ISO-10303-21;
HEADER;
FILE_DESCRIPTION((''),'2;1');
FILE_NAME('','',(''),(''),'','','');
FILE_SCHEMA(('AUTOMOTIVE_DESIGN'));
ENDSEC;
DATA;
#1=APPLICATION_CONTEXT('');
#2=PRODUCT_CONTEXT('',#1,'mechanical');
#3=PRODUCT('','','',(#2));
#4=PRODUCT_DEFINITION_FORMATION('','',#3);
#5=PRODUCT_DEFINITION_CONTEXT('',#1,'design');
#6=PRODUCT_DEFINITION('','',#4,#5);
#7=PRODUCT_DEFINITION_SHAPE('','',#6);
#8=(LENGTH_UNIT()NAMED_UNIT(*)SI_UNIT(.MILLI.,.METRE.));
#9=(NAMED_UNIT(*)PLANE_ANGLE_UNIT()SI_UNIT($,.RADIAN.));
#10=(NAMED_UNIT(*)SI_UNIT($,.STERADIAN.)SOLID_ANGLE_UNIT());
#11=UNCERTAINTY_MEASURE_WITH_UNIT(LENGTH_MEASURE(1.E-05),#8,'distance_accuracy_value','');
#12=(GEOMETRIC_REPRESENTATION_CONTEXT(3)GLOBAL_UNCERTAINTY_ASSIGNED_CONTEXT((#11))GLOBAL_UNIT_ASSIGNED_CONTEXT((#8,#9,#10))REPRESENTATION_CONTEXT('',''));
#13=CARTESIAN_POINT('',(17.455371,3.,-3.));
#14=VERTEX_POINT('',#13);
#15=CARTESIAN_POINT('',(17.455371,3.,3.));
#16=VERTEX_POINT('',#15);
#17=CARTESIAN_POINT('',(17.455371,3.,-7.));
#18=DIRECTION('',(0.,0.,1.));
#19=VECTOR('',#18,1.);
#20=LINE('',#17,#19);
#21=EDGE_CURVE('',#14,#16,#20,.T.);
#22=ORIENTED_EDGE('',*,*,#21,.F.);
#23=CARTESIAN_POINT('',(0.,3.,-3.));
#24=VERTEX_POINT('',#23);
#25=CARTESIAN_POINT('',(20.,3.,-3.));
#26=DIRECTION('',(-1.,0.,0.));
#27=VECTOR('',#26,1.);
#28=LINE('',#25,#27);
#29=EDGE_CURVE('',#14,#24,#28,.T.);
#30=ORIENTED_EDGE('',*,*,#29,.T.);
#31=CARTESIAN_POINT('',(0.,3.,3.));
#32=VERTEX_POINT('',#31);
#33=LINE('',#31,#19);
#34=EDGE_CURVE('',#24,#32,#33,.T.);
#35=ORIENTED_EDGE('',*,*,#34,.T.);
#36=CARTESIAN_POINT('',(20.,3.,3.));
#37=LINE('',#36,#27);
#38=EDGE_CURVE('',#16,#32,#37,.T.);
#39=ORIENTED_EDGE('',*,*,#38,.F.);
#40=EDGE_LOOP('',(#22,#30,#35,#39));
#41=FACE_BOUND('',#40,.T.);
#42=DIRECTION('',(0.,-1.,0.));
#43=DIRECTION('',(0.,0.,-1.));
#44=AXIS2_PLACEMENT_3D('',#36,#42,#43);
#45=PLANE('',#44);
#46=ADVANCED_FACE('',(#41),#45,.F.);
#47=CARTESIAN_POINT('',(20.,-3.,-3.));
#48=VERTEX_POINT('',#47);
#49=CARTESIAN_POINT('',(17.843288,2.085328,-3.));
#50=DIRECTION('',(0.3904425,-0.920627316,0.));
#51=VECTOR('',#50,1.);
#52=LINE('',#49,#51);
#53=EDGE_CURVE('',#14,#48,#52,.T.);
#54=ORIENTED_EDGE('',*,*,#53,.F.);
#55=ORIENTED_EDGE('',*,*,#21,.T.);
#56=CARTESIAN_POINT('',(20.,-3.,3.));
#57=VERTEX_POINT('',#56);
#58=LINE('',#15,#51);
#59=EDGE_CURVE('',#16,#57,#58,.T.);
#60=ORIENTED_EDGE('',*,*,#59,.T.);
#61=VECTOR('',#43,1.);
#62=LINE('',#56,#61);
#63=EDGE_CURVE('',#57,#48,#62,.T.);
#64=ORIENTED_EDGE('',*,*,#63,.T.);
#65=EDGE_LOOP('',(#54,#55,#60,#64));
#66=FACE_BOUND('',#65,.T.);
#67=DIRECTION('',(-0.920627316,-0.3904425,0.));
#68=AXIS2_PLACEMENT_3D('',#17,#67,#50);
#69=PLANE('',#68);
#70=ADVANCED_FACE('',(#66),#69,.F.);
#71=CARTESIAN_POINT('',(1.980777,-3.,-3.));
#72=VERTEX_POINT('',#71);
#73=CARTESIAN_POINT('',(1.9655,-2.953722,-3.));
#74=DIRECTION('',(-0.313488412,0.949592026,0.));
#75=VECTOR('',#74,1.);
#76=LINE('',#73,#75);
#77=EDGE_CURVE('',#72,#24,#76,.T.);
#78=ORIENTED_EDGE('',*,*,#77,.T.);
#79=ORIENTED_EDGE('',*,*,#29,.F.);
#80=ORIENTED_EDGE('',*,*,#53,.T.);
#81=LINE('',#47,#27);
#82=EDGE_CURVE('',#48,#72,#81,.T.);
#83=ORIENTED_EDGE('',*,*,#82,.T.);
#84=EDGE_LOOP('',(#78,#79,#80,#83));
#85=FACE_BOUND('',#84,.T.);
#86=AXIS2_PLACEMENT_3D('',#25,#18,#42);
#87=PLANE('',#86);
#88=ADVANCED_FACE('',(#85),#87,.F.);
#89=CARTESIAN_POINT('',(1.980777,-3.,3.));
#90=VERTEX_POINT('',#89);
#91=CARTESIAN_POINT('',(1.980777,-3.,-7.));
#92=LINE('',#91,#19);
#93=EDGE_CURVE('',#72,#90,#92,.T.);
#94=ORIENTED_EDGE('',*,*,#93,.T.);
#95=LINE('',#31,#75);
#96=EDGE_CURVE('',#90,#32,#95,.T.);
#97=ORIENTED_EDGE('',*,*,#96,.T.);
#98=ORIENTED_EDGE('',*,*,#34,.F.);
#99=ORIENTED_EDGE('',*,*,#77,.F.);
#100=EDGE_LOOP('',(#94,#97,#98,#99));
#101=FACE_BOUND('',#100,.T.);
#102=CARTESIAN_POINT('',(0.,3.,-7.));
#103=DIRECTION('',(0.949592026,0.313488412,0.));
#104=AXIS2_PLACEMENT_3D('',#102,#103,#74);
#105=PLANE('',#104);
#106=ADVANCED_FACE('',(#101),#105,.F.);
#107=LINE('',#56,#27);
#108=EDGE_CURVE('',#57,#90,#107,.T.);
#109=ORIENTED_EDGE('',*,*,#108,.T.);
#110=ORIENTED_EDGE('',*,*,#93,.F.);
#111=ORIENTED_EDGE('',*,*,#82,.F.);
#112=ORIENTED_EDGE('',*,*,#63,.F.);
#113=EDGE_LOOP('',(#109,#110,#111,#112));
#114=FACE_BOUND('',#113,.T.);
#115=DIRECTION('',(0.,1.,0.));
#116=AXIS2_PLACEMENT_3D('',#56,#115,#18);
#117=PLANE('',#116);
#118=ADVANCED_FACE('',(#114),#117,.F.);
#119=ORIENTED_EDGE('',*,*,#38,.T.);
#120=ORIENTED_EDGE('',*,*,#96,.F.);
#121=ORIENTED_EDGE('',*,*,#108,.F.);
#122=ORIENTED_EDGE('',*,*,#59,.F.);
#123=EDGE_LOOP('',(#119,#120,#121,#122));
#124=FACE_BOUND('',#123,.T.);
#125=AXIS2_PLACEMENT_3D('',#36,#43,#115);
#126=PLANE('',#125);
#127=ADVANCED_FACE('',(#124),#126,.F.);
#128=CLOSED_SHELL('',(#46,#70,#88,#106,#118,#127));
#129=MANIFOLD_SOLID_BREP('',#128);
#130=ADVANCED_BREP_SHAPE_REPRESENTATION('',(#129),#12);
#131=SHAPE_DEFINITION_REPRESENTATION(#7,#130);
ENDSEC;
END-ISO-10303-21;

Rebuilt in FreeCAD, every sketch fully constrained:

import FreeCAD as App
import Part
import Sketcher

V = App.Vector

doc = App.newDocument("Part")
body = doc.addObject("PartDesign::Body", "Body")

# Sketch on YZ plane
sketch1 = body.newObject("Sketcher::SketchObject", "Sketch")
sketch1.AttachmentSupport = (doc.getObject("YZ_Plane"), [""])
sketch1.MapMode = "FlatFace"
sketch1.addGeometry(Part.LineSegment(V(3, 3, 0), V(-3, 3, 0)), False)
sketch1.addGeometry(Part.LineSegment(V(-3, 3, 0), V(-3, -3, 0)), False)
sketch1.addGeometry(Part.LineSegment(V(-3, -3, 0), V(3, -3, 0)), False)
sketch1.addGeometry(Part.LineSegment(V(3, -3, 0), V(3, 3, 0)), False)
sketch1.addConstraint(Sketcher.Constraint("Coincident", 0, 2, 1, 1))
sketch1.addConstraint(Sketcher.Constraint("Coincident", 1, 2, 2, 1))
sketch1.addConstraint(Sketcher.Constraint("Coincident", 2, 2, 3, 1))
sketch1.addConstraint(Sketcher.Constraint("Coincident", 3, 2, 0, 1))
sketch1.addConstraint(Sketcher.Constraint("Horizontal", 0))
sketch1.addConstraint(Sketcher.Constraint("Vertical", 1))
sketch1.addConstraint(Sketcher.Constraint("Horizontal", 2))
sketch1.addConstraint(Sketcher.Constraint("Vertical", 3))
sketch1.addConstraint(Sketcher.Constraint("Symmetric", 0, 2, 2, 2, -1, 1))
sketch1.addConstraint(Sketcher.Constraint("Equal", 2, 1))
sketch1.addConstraint(Sketcher.Constraint("DistanceX", 0, 2, 0, 1, 6.0))
pad1 = body.newObject("PartDesign::Pad", "Pad")
pad1.Profile = sketch1
pad1.Length = 20

# Sketch on XY plane
sketch2 = body.newObject("Sketcher::SketchObject", "Sketch001")
sketch2.AttachmentSupport = (doc.getObject("XY_Plane"), [""])
sketch2.MapMode = "FlatFace"
sketch2.AttachmentOffset = App.Placement(V(0, 0, 3), App.Rotation())
sketch2.addGeometry(Part.LineSegment(V(1.980777, -3, 0), V(0, 3, 0)), False)
sketch2.addGeometry(Part.LineSegment(V(0, 3, 0), V(0, -3, 0)), False)
sketch2.addGeometry(Part.LineSegment(V(0, -3, 0), V(1.980777, -3, 0)), False)
sketch2.addGeometry(Part.LineSegment(V(17.455371, 3, 0), V(20, -3, 0)), False)
sketch2.addGeometry(Part.LineSegment(V(20, -3, 0), V(20, 3, 0)), False)
sketch2.addGeometry(Part.LineSegment(V(20, 3, 0), V(17.455371, 3, 0)), False)
sketch2.addConstraint(Sketcher.Constraint("Coincident", 0, 2, 1, 1))
sketch2.addConstraint(Sketcher.Constraint("Coincident", 1, 2, 2, 1))
sketch2.addConstraint(Sketcher.Constraint("Coincident", 2, 2, 0, 1))
sketch2.addConstraint(Sketcher.Constraint("Coincident", 3, 2, 4, 1))
sketch2.addConstraint(Sketcher.Constraint("Coincident", 4, 2, 5, 1))
sketch2.addConstraint(Sketcher.Constraint("Coincident", 5, 2, 3, 1))
sketch2.addConstraint(Sketcher.Constraint("Vertical", 1))
sketch2.addConstraint(Sketcher.Constraint("Horizontal", 2))
sketch2.addConstraint(Sketcher.Constraint("Vertical", 4))
sketch2.addConstraint(Sketcher.Constraint("Horizontal", 5))
sketch2.addConstraint(Sketcher.Constraint("Symmetric", 0, 2, 1, 2, -1, 1))
sketch2.addConstraint(Sketcher.Constraint("Horizontal", 2, 2, 3, 2))
sketch2.addConstraint(Sketcher.Constraint("Horizontal", 0, 2, 4, 2))
sketch2.addConstraint(Sketcher.Constraint("DistanceY", 1, 2, 1, 1, 6.0))
sketch2.addConstraint(Sketcher.Constraint("DistanceX", -1, 1, 3, 2, 20.0))
sketch2.addConstraint(Sketcher.Constraint("DistanceX", 5, 2, 5, 1, 2.544629))
sketch2.addConstraint(Sketcher.Constraint("DistanceX", 2, 1, 2, 2, 1.980777))
pocket1 = body.newObject("PartDesign::Pocket", "Pocket")
pocket1.Profile = sketch2
pocket1.Length = 10

doc.recompute()
